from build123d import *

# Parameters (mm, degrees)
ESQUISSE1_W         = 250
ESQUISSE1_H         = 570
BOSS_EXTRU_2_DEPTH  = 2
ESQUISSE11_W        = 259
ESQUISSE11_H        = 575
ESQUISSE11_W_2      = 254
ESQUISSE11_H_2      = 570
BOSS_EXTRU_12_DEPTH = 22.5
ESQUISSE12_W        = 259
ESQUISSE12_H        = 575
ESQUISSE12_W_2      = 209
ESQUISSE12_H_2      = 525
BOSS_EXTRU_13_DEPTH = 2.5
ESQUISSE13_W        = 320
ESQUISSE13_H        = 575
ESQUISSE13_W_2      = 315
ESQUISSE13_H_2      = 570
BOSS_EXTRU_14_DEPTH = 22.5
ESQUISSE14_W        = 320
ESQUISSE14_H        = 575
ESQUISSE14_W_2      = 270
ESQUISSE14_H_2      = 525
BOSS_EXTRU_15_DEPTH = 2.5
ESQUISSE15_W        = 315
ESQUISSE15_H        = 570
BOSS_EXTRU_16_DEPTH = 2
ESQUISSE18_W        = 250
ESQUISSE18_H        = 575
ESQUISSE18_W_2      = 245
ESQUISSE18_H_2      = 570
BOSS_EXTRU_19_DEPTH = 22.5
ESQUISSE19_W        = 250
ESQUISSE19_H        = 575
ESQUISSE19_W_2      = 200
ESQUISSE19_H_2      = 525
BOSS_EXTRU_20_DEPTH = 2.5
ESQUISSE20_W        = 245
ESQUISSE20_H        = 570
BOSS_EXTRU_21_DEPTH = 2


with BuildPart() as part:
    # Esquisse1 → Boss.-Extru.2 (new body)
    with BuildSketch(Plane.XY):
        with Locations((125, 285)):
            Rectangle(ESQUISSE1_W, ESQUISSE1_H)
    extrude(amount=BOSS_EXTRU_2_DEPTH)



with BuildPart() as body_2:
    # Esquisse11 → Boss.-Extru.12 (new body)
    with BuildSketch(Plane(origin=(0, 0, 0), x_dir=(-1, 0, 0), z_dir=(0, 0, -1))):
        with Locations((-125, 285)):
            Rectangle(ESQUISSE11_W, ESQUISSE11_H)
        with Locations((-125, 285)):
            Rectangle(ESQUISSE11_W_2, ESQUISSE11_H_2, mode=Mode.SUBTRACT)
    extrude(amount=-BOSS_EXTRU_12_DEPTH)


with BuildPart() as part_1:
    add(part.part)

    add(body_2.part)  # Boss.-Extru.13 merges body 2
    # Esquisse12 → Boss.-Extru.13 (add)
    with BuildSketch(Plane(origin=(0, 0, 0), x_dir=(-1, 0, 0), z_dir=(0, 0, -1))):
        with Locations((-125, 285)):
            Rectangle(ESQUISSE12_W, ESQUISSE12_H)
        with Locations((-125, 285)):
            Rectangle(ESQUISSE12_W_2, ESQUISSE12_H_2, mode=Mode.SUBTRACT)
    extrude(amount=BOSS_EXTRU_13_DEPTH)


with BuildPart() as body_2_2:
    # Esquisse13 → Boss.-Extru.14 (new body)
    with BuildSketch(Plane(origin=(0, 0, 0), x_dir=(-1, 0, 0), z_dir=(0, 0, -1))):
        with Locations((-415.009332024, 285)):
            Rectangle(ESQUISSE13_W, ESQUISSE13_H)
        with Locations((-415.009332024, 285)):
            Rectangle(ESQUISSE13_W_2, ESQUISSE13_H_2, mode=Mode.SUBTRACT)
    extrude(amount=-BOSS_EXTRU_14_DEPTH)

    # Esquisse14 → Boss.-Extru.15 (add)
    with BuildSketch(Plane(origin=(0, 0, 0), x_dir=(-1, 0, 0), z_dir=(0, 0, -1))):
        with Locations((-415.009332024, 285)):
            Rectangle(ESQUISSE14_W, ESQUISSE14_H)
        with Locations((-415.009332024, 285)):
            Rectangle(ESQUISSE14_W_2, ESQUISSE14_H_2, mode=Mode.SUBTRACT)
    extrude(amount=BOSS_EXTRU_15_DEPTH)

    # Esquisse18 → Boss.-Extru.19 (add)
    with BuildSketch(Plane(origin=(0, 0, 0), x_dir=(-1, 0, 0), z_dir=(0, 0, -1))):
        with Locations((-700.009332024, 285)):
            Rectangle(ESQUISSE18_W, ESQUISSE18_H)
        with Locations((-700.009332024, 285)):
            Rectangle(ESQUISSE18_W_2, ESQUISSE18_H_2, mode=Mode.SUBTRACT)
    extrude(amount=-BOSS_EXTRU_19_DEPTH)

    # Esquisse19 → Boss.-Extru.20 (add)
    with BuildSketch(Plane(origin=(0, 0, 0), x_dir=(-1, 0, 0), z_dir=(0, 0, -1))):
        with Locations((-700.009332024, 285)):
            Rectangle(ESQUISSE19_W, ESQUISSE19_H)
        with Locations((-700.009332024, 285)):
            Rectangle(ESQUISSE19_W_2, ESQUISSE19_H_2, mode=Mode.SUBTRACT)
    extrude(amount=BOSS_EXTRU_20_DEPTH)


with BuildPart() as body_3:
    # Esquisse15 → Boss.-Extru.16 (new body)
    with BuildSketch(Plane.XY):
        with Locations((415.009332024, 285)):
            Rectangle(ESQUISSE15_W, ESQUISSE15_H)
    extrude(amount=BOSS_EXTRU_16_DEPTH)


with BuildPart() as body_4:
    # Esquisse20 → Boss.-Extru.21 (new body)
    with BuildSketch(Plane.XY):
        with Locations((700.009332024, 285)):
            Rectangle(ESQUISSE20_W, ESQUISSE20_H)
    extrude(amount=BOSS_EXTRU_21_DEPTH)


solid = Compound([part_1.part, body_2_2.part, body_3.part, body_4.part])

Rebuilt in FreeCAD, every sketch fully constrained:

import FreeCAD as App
import Part
import Sketcher

V = App.Vector

doc = App.newDocument("Part")
params = doc.addObject("Spreadsheet::Sheet", "Params")
for row, (alias, value) in enumerate([
    ("sketch1_width", "250 mm"),
    ("sketch1_height", "570 mm"),
    ("pad1_length", "2 mm"),
    ("sketch2_width", "259 mm"),
    ("sketch2_width2", "254 mm"),
    ("sketch2_height", "575 mm"),
    ("sketch2_height2", "570 mm"),
    ("pad2_length", "22.5 mm"),
    ("sketch3_width", "259 mm"),
    ("sketch3_width2", "209 mm"),
    ("sketch3_height", "575 mm"),
    ("sketch3_height2", "525 mm"),
    ("pad3_length", "2.5 mm"),
    ("sketch4_width", "320 mm"),
    ("sketch4_width2", "315 mm"),
    ("sketch4_height", "575 mm"),
    ("sketch4_height2", "570 mm"),
    ("pad4_length", "22.5 mm"),
    ("sketch5_width", "320 mm"),
    ("sketch5_width2", "270 mm"),
    ("sketch5_height", "575 mm"),
    ("sketch5_height2", "525 mm"),
    ("pad5_length", "2.5 mm"),
    ("sketch6_width", "250 mm"),
    ("sketch6_width2", "245 mm"),
    ("sketch6_height", "575 mm"),
    ("sketch6_height2", "570 mm"),
    ("pad6_length", "22.5 mm"),
    ("sketch7_width", "250 mm"),
    ("sketch7_width2", "200 mm"),
    ("sketch7_height", "575 mm"),
    ("sketch7_height2", "525 mm"),
    ("pad7_length", "2.5 mm"),
    ("sketch8_width", "315 mm"),
    ("sketch8_height", "570 mm"),
    ("pad8_length", "2 mm"),
    ("sketch9_width", "245 mm"),
    ("sketch9_height", "570 mm"),
    ("pad9_length", "2 mm"),
], start=1):
    params.set(f"A{row}", alias)
    params.set(f"B{row}", "=" + value)
    params.setAlias(f"B{row}", alias)

body = doc.addObject("PartDesign::Body", "Body")

sketch1 = body.newObject("Sketcher::SketchObject", "Sketch")
sketch1.AttachmentSupport = (doc.getObject("XY_Plane"), [""])
sketch1.MapMode = "FlatFace"
sketch1.addGeometry(Part.LineSegment(V(0, 570, 0), V(0, 0, 0)), False)
sketch1.addGeometry(Part.LineSegment(V(0, 0, 0), V(250, 0, 0)), False)
sketch1.addGeometry(Part.LineSegment(V(250, 0, 0), V(250, 570, 0)), False)
sketch1.addGeometry(Part.LineSegment(V(250, 570, 0), V(0, 570, 0)), False)
sketch1.addConstraint(Sketcher.Constraint("Coincident", 0, 2, 1, 1))
sketch1.addConstraint(Sketcher.Constraint("Coincident", 1, 2, 2, 1))
sketch1.addConstraint(Sketcher.Constraint("Coincident", 2, 2, 3, 1))
sketch1.addConstraint(Sketcher.Constraint("Coincident", 3, 2, 0, 1))
sketch1.addConstraint(Sketcher.Constraint("Vertical", 0))
sketch1.addConstraint(Sketcher.Constraint("Horizontal", 1))
sketch1.addConstraint(Sketcher.Constraint("Vertical", 2))
sketch1.addConstraint(Sketcher.Constraint("Horizontal", 3))
sketch1.addConstraint(Sketcher.Constraint("Coincident", 0, 2, -1, 1))
sketch1.addConstraint(Sketcher.Constraint("DistanceX", 1, 1, 1, 2, 250.0))
sketch1.addConstraint(Sketcher.Constraint("DistanceY", 0, 2, 0, 1, 570.0))
sketch1.setExpression("Constraints[9]", "Params.sketch1_width")
sketch1.setExpression("Constraints[10]", "Params.sketch1_height")
pad1 = body.newObject("PartDesign::Pad", "Pad")
pad1.Profile = sketch1
pad1.setExpression("Length", "Params.pad1_length")
body2 = doc.addObject("PartDesign::Body", "Body001")

sketch2 = body2.newObject("Sketcher::SketchObject", "Sketch001")
sketch2.AttachmentSupport = (doc.getObject("XY_Plane001"), [""])
sketch2.MapMode = "FlatFace"
sketch2.addGeometry(Part.LineSegment(V(254, 572, 0), V(254, -2, 0)), False)
sketch2.addGeometry(Part.LineSegment(V(254, -2, 0), V(-4, -2, 0)), False)
sketch2.addGeometry(Part.LineSegment(V(-4, -2, 0), V(-4, 572, 0)), False)
sketch2.addGeometry(Part.LineSegment(V(-4, 572, 0), V(254, 572, 0)), False)
sketch2.addGeometry(Part.LineSegment(V(-2, 0, 0), V(252, 0, 0)), False)
sketch2.addGeometry(Part.LineSegment(V(252, 0, 0), V(252, 570, 0)), False)
sketch2.addGeometry(Part.LineSegment(V(252, 570, 0), V(-2, 570, 0)), False)
sketch2.addGeometry(Part.LineSegment(V(-2, 570, 0), V(-2, 0, 0)), False)
sketch2.addConstraint(Sketcher.Constraint("Coincident", 0, 2, 1, 1))
sketch2.addConstraint(Sketcher.Constraint("Coincident", 1, 2, 2, 1))
sketch2.addConstraint(Sketcher.Constraint("Coincident", 2, 2, 3, 1))
sketch2.addConstraint(Sketcher.Constraint("Coincident", 3, 2, 0, 1))
sketch2.addConstraint(Sketcher.Constraint("Coincident", 4, 2, 5, 1))
sketch2.addConstraint(Sketcher.Constraint("Coincident", 5, 2, 6, 1))
sketch2.addConstraint(Sketcher.Constraint("Coincident", 6, 2, 7, 1))
sketch2.addConstraint(Sketcher.Constraint("Coincident", 7, 2, 4, 1))
sketch2.addConstraint(Sketcher.Constraint("Vertical", 0))
sketch2.addConstraint(Sketcher.Constraint("Horizontal", 1))
sketch2.addConstraint(Sketcher.Constraint("Vertical", 2))
sketch2.addConstraint(Sketcher.Constraint("Horizontal", 3))
sketch2.addConstraint(Sketcher.Constraint("Horizontal", 4))
sketch2.addConstraint(Sketcher.Constraint("Vertical", 5))
sketch2.addConstraint(Sketcher.Constraint("Horizontal", 6))
sketch2.addConstraint(Sketcher.Constraint("Vertical", 7))
sketch2.addConstraint(Sketcher.Constraint("PointOnObject", 4, 2, -1))
sketch2.addConstraint(Sketcher.Constraint("DistanceX", 1, 2, 1, 1, 259.0))
sketch2.addConstraint(Sketcher.Constraint("DistanceX", 4, 1, 4, 2, 254.0))
sketch2.addConstraint(Sketcher.Constraint("DistanceY", 0, 2, 0, 1, 575.0))
sketch2.addConstraint(Sketcher.Constraint("DistanceY", 5, 1, 5, 2, 570.0))
sketch2.addConstraint(Sketcher.Constraint("DistanceX", -1, 1, 4, 2, 252.0))
sketch2.addConstraint(Sketcher.Constraint("DistanceX", -1, 1, 0, 2, 254.5))
sketch2.addConstraint(Sketcher.Constraint("DistanceY", 0, 2, -1, 1, 2.5))
sketch2.setExpression("Constraints[17]", "Params.sketch2_width")
sketch2.setExpression("Constraints[18]", "Params.sketch2_width2")
sketch2.setExpression("Constraints[19]", "Params.sketch2_height")
sketch2.setExpression("Constraints[20]", "Params.sketch2_height2")
pad2 = body2.newObject("PartDesign::Pad", "Pad001")
pad2.Profile = sketch2
pad2.setExpression("Length", "Params.pad2_length")
doc.recompute()

boolean = body.newObject("PartDesign::Boolean", "Boolean")
boolean.Type = "Fuse"
boolean.addObjects([body2])

sketch3 = body.newObject("Sketcher::SketchObject", "Sketch002")
sketch3.AttachmentSupport = (doc.getObject("XY_Plane"), [""])
sketch3.MapMode = "FlatFace"
sketch3.addGeometry(Part.LineSegment(V(254, 572, 0), V(254, -2, 0)), False)
sketch3.addGeometry(Part.LineSegment(V(254, -2, 0), V(-4, -2, 0)), False)
sketch3.addGeometry(Part.LineSegment(V(-4, -2, 0), V(-4, 572, 0)), False)
sketch3.addGeometry(Part.LineSegment(V(-4, 572, 0), V(254, 572, 0)), False)
sketch3.addGeometry(Part.LineSegment(V(20, 22, 0), V(230, 22, 0)), False)
sketch3.addGeometry(Part.LineSegment(V(230, 22, 0), V(230, 548, 0)), False)
sketch3.addGeometry(Part.LineSegment(V(230, 548, 0), V(20, 548, 0)), False)
sketch3.addGeometry(Part.LineSegment(V(20, 548, 0), V(20, 22, 0)), False)
sketch3.addConstraint(Sketcher.Constraint("Coincident", 0, 2, 1, 1))
sketch3.addConstraint(Sketcher.Constraint("Coincident", 1, 2, 2, 1))
sketch3.addConstraint(Sketcher.Constraint("Coincident", 2, 2, 3, 1))
sketch3.addConstraint(Sketcher.Constraint("Coincident", 3, 2, 0, 1))
sketch3.addConstraint(Sketcher.Constraint("Coincident", 4, 2, 5, 1))
sketch3.addConstraint(Sketcher.Constraint("Coincident", 5, 2, 6, 1))
sketch3.addConstraint(Sketcher.Constraint("Coincident", 6, 2, 7, 1))
sketch3.addConstraint(Sketcher.Constraint("Coincident", 7, 2, 4, 1))
sketch3.addConstraint(Sketcher.Constraint("Vertical", 0))
sketch3.addConstraint(Sketcher.Constraint("Horizontal", 1))
sketch3.addConstraint(Sketcher.Constraint("Vertical", 2))
sketch3.addConstraint(Sketcher.Constraint("Horizontal", 3))
sketch3.addConstraint(Sketcher.Constraint("Horizontal", 4))
sketch3.addConstraint(Sketcher.Constraint("Vertical", 5))
sketch3.addConstraint(Sketcher.Constraint("Horizontal", 6))
sketch3.addConstraint(Sketcher.Constraint("Vertical", 7))
sketch3.addConstraint(Sketcher.Constraint("DistanceX", 1, 2, 1, 1, 259.0))
sketch3.addConstraint(Sketcher.Constraint("DistanceX", 4, 1, 4, 2, 209.0))
sketch3.addConstraint(Sketcher.Constraint("DistanceY", 0, 2, 0, 1, 575.0))
sketch3.addConstraint(Sketcher.Constraint("DistanceY", 5, 1, 5, 2, 525.0))
sketch3.addConstraint(Sketcher.Constraint("DistanceX", 4, 2, 0, 2, 25.0))
sketch3.addConstraint(Sketcher.Constraint("DistanceY", 0, 2, 4, 2, 25.0))
sketch3.addConstraint(Sketcher.Constraint("DistanceX", -1, 1, 0, 2, 254.5))
sketch3.addConstraint(Sketcher.Constraint("DistanceY", 0, 2, -1, 1, 2.5))
sketch3.setExpression("Constraints[16]", "Params.sketch3_width")
sketch3.setExpression("Constraints[17]", "Params.sketch3_width2")
sketch3.setExpression("Constraints[18]", "Params.sketch3_height")
sketch3.setExpression("Constraints[19]", "Params.sketch3_height2")
pad3 = body.newObject("PartDesign::Pad", "Pad002")
pad3.Profile = sketch3
pad3.setExpression("Length", "Params.pad3_length")
pad3.Reversed = True
body3 = doc.addObject("PartDesign::Body", "Body002")

sketch4 = body3.newObject("Sketcher::SketchObject", "Sketch003")
sketch4.AttachmentSupport = (doc.getObject("XY_Plane002"), [""])
sketch4.MapMode = "FlatFace"
sketch4.addGeometry(Part.LineSegment(V(575, 572, 0), V(575, -2, 0)), False)
sketch4.addGeometry(Part.LineSegment(V(575, -2, 0), V(255, -2, 0)), False)
sketch4.addGeometry(Part.LineSegment(V(255, -2, 0), V(255, 572, 0)), False)
sketch4.addGeometry(Part.LineSegment(V(255, 572, 0), V(575, 572, 0)), False)
sketch4.addGeometry(Part.LineSegment(V(258, 0, 0), V(573, 0, 0)), False)
sketch4.addGeometry(Part.LineSegment(V(573, 0, 0), V(573, 570, 0)), False)
sketch4.addGeometry(Part.LineSegment(V(573, 570, 0), V(258, 570, 0)), False)
sketch4.addGeometry(Part.LineSegment(V(258, 570, 0), V(258, 0, 0)), False)
sketch4.addConstraint(Sketcher.Constraint("Coincident", 0, 2, 1, 1))
sketch4.addConstraint(Sketcher.Constraint("Coincident", 1, 2, 2, 1))
sketch4.addConstraint(Sketcher.Constraint("Coincident", 2, 2, 3, 1))
sketch4.addConstraint(Sketcher.Constraint("Coincident", 3, 2, 0, 1))
sketch4.addConstraint(Sketcher.Constraint("Coincident", 4, 2, 5, 1))
sketch4.addConstraint(Sketcher.Constraint("Coincident", 5, 2, 6, 1))
sketch4.addConstraint(Sketcher.Constraint("Coincident", 6, 2, 7, 1))
sketch4.addConstraint(Sketcher.Constraint("Coincident", 7, 2, 4, 1))
sketch4.addConstraint(Sketcher.Constraint("Vertical", 0))
sketch4.addConstraint(Sketcher.Constraint("Horizontal", 1))
sketch4.addConstraint(Sketcher.Constraint("Vertical", 2))
sketch4.addConstraint(Sketcher.Constraint("Horizontal", 3))
sketch4.addConstraint(Sketcher.Constraint("Horizontal", 4))
sketch4.addConstraint(Sketcher.Constraint("Vertical", 5))
sketch4.addConstraint(Sketcher.Constraint("Horizontal", 6))
sketch4.addConstraint(Sketcher.Constraint("Vertical", 7))
sketch4.addConstraint(Sketcher.Constraint("PointOnObject", 4, 2, -1))
sketch4.addConstraint(Sketcher.Constraint("DistanceX", 1, 2, 1, 1, 320.0))
sketch4.addConstraint(Sketcher.Constraint("DistanceX", 4, 1, 4, 2, 315.0))
sketch4.addConstraint(Sketcher.Constraint("DistanceY", 0, 2, 0, 1, 575.0))
sketch4.addConstraint(Sketcher.Constraint("DistanceY", 5, 1, 5, 2, 570.0))
sketch4.addConstraint(Sketcher.Constraint("DistanceY", 0, 2, -1, 1, 2.5))
sketch4.addConstraint(Sketcher.Constraint("DistanceX", 4, 2, 0, 2, 2.5))
sketch4.addConstraint(Sketcher.Constraint("DistanceX", -1, 1, 0, 2, 575.009332))
sketch4.setExpression("Constraints[17]", "Params.sketch4_width")
sketch4.setExpression("Constraints[18]", "Params.sketch4_width2")
sketch4.setExpression("Constraints[19]", "Params.sketch4_height")
sketch4.setExpression("Constraints[20]", "Params.sketch4_height2")
pad4 = body3.newObject("PartDesign::Pad", "Pad003")
pad4.Profile = sketch4
pad4.setExpression("Length", "Params.pad4_length")

sketch5 = body3.newObject("Sketcher::SketchObject", "Sketch004")
sketch5.AttachmentSupport = (doc.getObject("XY_Plane002"), [""])
sketch5.MapMode = "FlatFace"
sketch5.addGeometry(Part.LineSegment(V(575, 572, 0), V(575, -2, 0)), False)
sketch5.addGeometry(Part.LineSegment(V(575, -2, 0), V(255, -2, 0)), False)
sketch5.addGeometry(Part.LineSegment(V(255, -2, 0), V(255, 572, 0)), False)
sketch5.addGeometry(Part.LineSegment(V(255, 572, 0), V(575, 572, 0)), False)
sketch5.addGeometry(Part.LineSegment(V(280, 22, 0), V(550, 22, 0)), False)
sketch5.addGeometry(Part.LineSegment(V(550, 22, 0), V(550, 548, 0)), False)
sketch5.addGeometry(Part.LineSegment(V(550, 548, 0), V(280, 548, 0)), False)
sketch5.addGeometry(Part.LineSegment(V(280, 548, 0), V(280, 22, 0)), False)
sketch5.addConstraint(Sketcher.Constraint("Coincident", 0, 2, 1, 1))
sketch5.addConstraint(Sketcher.Constraint("Coincident", 1, 2, 2, 1))
sketch5.addConstraint(Sketcher.Constraint("Coincident", 2, 2, 3, 1))
sketch5.addConstraint(Sketcher.Constraint("Coincident", 3, 2, 0, 1))
sketch5.addConstraint(Sketcher.Constraint("Coincident", 4, 2, 5, 1))
sketch5.addConstraint(Sketcher.Constraint("Coincident", 5, 2, 6, 1))
sketch5.addConstraint(Sketcher.Constraint("Coincident", 6, 2, 7, 1))
sketch5.addConstraint(Sketcher.Constraint("Coincident", 7, 2, 4, 1))
sketch5.addConstraint(Sketcher.Constraint("Vertical", 0))
sketch5.addConstraint(Sketcher.Constraint("Horizontal", 1))
sketch5.addConstraint(Sketcher.Constraint("Vertical", 2))
sketch5.addConstraint(Sketcher.Constraint("Horizontal", 3))
sketch5.addConstraint(Sketcher.Constraint("Horizontal", 4))
sketch5.addConstraint(Sketcher.Constraint("Vertical", 5))
sketch5.addConstraint(Sketcher.Constraint("Horizontal", 6))
sketch5.addConstraint(Sketcher.Constraint("Vertical", 7))
sketch5.addConstraint(Sketcher.Constraint("DistanceX", 1, 2, 1, 1, 320.0))
sketch5.addConstraint(Sketcher.Constraint("DistanceX", 4, 1, 4, 2, 270.0))
sketch5.addConstraint(Sketcher.Constraint("DistanceY", 0, 2, 0, 1, 575.0))
sketch5.addConstraint(Sketcher.Constraint("DistanceY", 5, 1, 5, 2, 525.0))
sketch5.addConstraint(Sketcher.Constraint("DistanceX", 4, 2, 0, 2, 25.0))
sketch5.addConstraint(Sketcher.Constraint("DistanceY", 0, 2, 4, 2, 25.0))
sketch5.addConstraint(Sketcher.Constraint("DistanceY", 0, 2, -1, 1, 2.5))
sketch5.addConstraint(Sketcher.Constraint("DistanceX", -1, 1, 0, 2, 575.009332))
sketch5.setExpression("Constraints[16]", "Params.sketch5_width")
sketch5.setExpression("Constraints[17]", "Params.sketch5_width2")
sketch5.setExpression("Constraints[18]", "Params.sketch5_height")
sketch5.setExpression("Constraints[19]", "Params.sketch5_height2")
pad5 = body3.newObject("PartDesign::Pad", "Pad004")
pad5.Profile = sketch5
pad5.setExpression("Length", "Params.pad5_length")
pad5.Reversed = True

sketch6 = body3.newObject("Sketcher::SketchObject", "Sketch005")
sketch6.AttachmentSupport = (doc.getObject("XY_Plane002"), [""])
sketch6.MapMode = "FlatFace"
sketch6.addGeometry(Part.LineSegment(V(825, 572, 0), V(825, -2, 0)), False)
sketch6.addGeometry(Part.LineSegment(V(825, -2, 0), V(575, -2, 0)), False)
sketch6.addGeometry(Part.LineSegment(V(575, -2, 0), V(575, 572, 0)), False)
sketch6.addGeometry(Part.LineSegment(V(575, 572, 0), V(825, 572, 0)), False)
sketch6.addGeometry(Part.LineSegment(V(578, 0, 0), V(823, 0, 0)), False)
sketch6.addGeometry(Part.LineSegment(V(823, 0, 0), V(823, 570, 0)), False)
sketch6.addGeometry(Part.LineSegment(V(823, 570, 0), V(578, 570, 0)), False)
sketch6.addGeometry(Part.LineSegment(V(578, 570, 0), V(578, 0, 0)), False)
sketch6.addConstraint(Sketcher.Constraint("Coincident", 0, 2, 1, 1))
sketch6.addConstraint(Sketcher.Constraint("Coincident", 1, 2, 2, 1))
sketch6.addConstraint(Sketcher.Constraint("Coincident", 2, 2, 3, 1))
sketch6.addConstraint(Sketcher.Constraint("Coincident", 3, 2, 0, 1))
sketch6.addConstraint(Sketcher.Constraint("Coincident", 4, 2, 5, 1))
sketch6.addConstraint(Sketcher.Constraint("Coincident", 5, 2, 6, 1))
sketch6.addConstraint(Sketcher.Constraint("Coincident", 6, 2, 7, 1))
sketch6.addConstraint(Sketcher.Constraint("Coincident", 7, 2, 4, 1))
sketch6.addConstraint(Sketcher.Constraint("Vertical", 0))
sketch6.addConstraint(Sketcher.Constraint("Horizontal", 1))
sketch6.addConstraint(Sketcher.Constraint("Vertical", 2))
sketch6.addConstraint(Sketcher.Constraint("Horizontal", 3))
sketch6.addConstraint(Sketcher.Constraint("Horizontal", 4))
sketch6.addConstraint(Sketcher.Constraint("Vertical", 5))
sketch6.addConstraint(Sketcher.Constraint("Horizontal", 6))
sketch6.addConstraint(Sketcher.Constraint("Vertical", 7))
sketch6.addConstraint(Sketcher.Constraint("PointOnObject", 4, 2, -1))
sketch6.addConstraint(Sketcher.Constraint("DistanceX", 1, 2, 1, 1, 250.0))
sketch6.addConstraint(Sketcher.Constraint("DistanceX", 4, 1, 4, 2, 245.0))
sketch6.addConstraint(Sketcher.Constraint("DistanceY", 0, 2, 0, 1, 575.0))
sketch6.addConstraint(Sketcher.Constraint("DistanceY", 5, 1, 5, 2, 570.0))
sketch6.addConstraint(Sketcher.Constraint("DistanceY", 0, 2, -1, 1, 2.5))
sketch6.addConstraint(Sketcher.Constraint("DistanceX", 4, 2, 0, 2, 2.5))
sketch6.addConstraint(Sketcher.Constraint("DistanceX", -1, 1, 0, 2, 825.009332))
sketch6.setExpression("Constraints[17]", "Params.sketch6_width")
sketch6.setExpression("Constraints[18]", "Params.sketch6_width2")
sketch6.setExpression("Constraints[19]", "Params.sketch6_height")
sketch6.setExpression("Constraints[20]", "Params.sketch6_height2")
pad6 = body3.newObject("PartDesign::Pad", "Pad005")
pad6.Profile = sketch6
pad6.setExpression("Length", "Params.pad6_length")

sketch7 = body3.newObject("Sketcher::SketchObject", "Sketch006")
sketch7.AttachmentSupport = (doc.getObject("XY_Plane002"), [""])
sketch7.MapMode = "FlatFace"
sketch7.addGeometry(Part.LineSegment(V(825, 572, 0), V(825, -2, 0)), False)
sketch7.addGeometry(Part.LineSegment(V(825, -2, 0), V(575, -2, 0)), False)
sketch7.addGeometry(Part.LineSegment(V(575, -2, 0), V(575, 572, 0)), False)
sketch7.addGeometry(Part.LineSegment(V(575, 572, 0), V(825, 572, 0)), False)
sketch7.addGeometry(Part.LineSegment(V(600, 22, 0), V(800, 22, 0)), False)
sketch7.addGeometry(Part.LineSegment(V(800, 22, 0), V(800, 548, 0)), False)
sketch7.addGeometry(Part.LineSegment(V(800, 548, 0), V(600, 548, 0)), False)
sketch7.addGeometry(Part.LineSegment(V(600, 548, 0), V(600, 22, 0)), False)
sketch7.addConstraint(Sketcher.Constraint("Coincident", 0, 2, 1, 1))
sketch7.addConstraint(Sketcher.Constraint("Coincident", 1, 2, 2, 1))
sketch7.addConstraint(Sketcher.Constraint("Coincident", 2, 2, 3, 1))
sketch7.addConstraint(Sketcher.Constraint("Coincident", 3, 2, 0, 1))
sketch7.addConstraint(Sketcher.Constraint("Coincident", 4, 2, 5, 1))
sketch7.addConstraint(Sketcher.Constraint("Coincident", 5, 2, 6, 1))
sketch7.addConstraint(Sketcher.Constraint("Coincident", 6, 2, 7, 1))
sketch7.addConstraint(Sketcher.Constraint("Coincident", 7, 2, 4, 1))
sketch7.addConstraint(Sketcher.Constraint("Vertical", 0))
sketch7.addConstraint(Sketcher.Constraint("Horizontal", 1))
sketch7.addConstraint(Sketcher.Constraint("Vertical", 2))
sketch7.addConstraint(Sketcher.Constraint("Horizontal", 3))
sketch7.addConstraint(Sketcher.Constraint("Horizontal", 4))
sketch7.addConstraint(Sketcher.Constraint("Vertical", 5))
sketch7.addConstraint(Sketcher.Constraint("Horizontal", 6))
sketch7.addConstraint(Sketcher.Constraint("Vertical", 7))
sketch7.addConstraint(Sketcher.Constraint("DistanceX", 1, 2, 1, 1, 250.0))
sketch7.addConstraint(Sketcher.Constraint("DistanceX", 4, 1, 4, 2, 200.0))
sketch7.addConstraint(Sketcher.Constraint("DistanceY", 0, 2, 0, 1, 575.0))
sketch7.addConstraint(Sketcher.Constraint("DistanceY", 5, 1, 5, 2, 525.0))
sketch7.addConstraint(Sketcher.Constraint("DistanceX", 4, 2, 0, 2, 25.0))
sketch7.addConstraint(Sketcher.Constraint("DistanceY", 0, 2, 4, 2, 25.0))
sketch7.addConstraint(Sketcher.Constraint("DistanceY", 0, 2, -1, 1, 2.5))
sketch7.addConstraint(Sketcher.Constraint("DistanceX", -1, 1, 0, 2, 825.009332))
sketch7.setExpression("Constraints[16]", "Params.sketch7_width")
sketch7.setExpression("Constraints[17]", "Params.sketch7_width2")
sketch7.setExpression("Constraints[18]", "Params.sketch7_height")
sketch7.setExpression("Constraints[19]", "Params.sketch7_height2")
pad7 = body3.newObject("PartDesign::Pad", "Pad006")
pad7.Profile = sketch7
pad7.setExpression("Length", "Params.pad7_length")
pad7.Reversed = True
body4 = doc.addObject("PartDesign::Body", "Body003")

sketch8 = body4.newObject("Sketcher::SketchObject", "Sketch007")
sketch8.AttachmentSupport = (doc.getObject("XY_Plane003"), [""])
sketch8.MapMode = "FlatFace"
sketch8.addGeometry(Part.LineSegment(V(258, 570, 0), V(258, 0, 0)), False)
sketch8.addGeometry(Part.LineSegment(V(258, 0, 0), V(573, 0, 0)), False)
sketch8.addGeometry(Part.LineSegment(V(573, 0, 0), V(573, 570, 0)), False)
sketch8.addGeometry(Part.LineSegment(V(573, 570, 0), V(258, 570, 0)), False)
sketch8.addConstraint(Sketcher.Constraint("Coincident", 0, 2, 1, 1))
sketch8.addConstraint(Sketcher.Constraint("Coincident", 1, 2, 2, 1))
sketch8.addConstraint(Sketcher.Constraint("Coincident", 2, 2, 3, 1))
sketch8.addConstraint(Sketcher.Constraint("Coincident", 3, 2, 0, 1))
sketch8.addConstraint(Sketcher.Constraint("Vertical", 0))
sketch8.addConstraint(Sketcher.Constraint("Horizontal", 1))
sketch8.addConstraint(Sketcher.Constraint("Vertical", 2))
sketch8.addConstraint(Sketcher.Constraint("Horizontal", 3))
sketch8.addConstraint(Sketcher.Constraint("PointOnObject", 0, 2, -1))
sketch8.addConstraint(Sketcher.Constraint("DistanceX", 1, 1, 1, 2, 315.0))
sketch8.addConstraint(Sketcher.Constraint("DistanceY", 0, 2, 0, 1, 570.0))
sketch8.addConstraint(Sketcher.Constraint("DistanceX", -1, 1, 0, 2, 257.509332))
sketch8.setExpression("Constraints[9]", "Params.sketch8_width")
sketch8.setExpression("Constraints[10]", "Params.sketch8_height")
pad8 = body4.newObject("PartDesign::Pad", "Pad007")
pad8.Profile = sketch8
pad8.setExpression("Length", "Params.pad8_length")
body5 = doc.addObject("PartDesign::Body", "Body004")

sketch9 = body5.newObject("Sketcher::SketchObject", "Sketch008")
sketch9.AttachmentSupport = (doc.getObject("XY_Plane004"), [""])
sketch9.MapMode = "FlatFace"
sketch9.addGeometry(Part.LineSegment(V(578, 570, 0), V(578, 0, 0)), False)
sketch9.addGeometry(Part.LineSegment(V(578, 0, 0), V(823, 0, 0)), False)
sketch9.addGeometry(Part.LineSegment(V(823, 0, 0), V(823, 570, 0)), False)
sketch9.addGeometry(Part.LineSegment(V(823, 570, 0), V(578, 570, 0)), False)
sketch9.addConstraint(Sketcher.Constraint("Coincident", 0, 2, 1, 1))
sketch9.addConstraint(Sketcher.Constraint("Coincident", 1, 2, 2, 1))
sketch9.addConstraint(Sketcher.Constraint("Coincident", 2, 2, 3, 1))
sketch9.addConstraint(Sketcher.Constraint("Coincident", 3, 2, 0, 1))
sketch9.addConstraint(Sketcher.Constraint("Vertical", 0))
sketch9.addConstraint(Sketcher.Constraint("Horizontal", 1))
sketch9.addConstraint(Sketcher.Constraint("Vertical", 2))
sketch9.addConstraint(Sketcher.Constraint("Horizontal", 3))
sketch9.addConstraint(Sketcher.Constraint("PointOnObject", 0, 2, -1))
sketch9.addConstraint(Sketcher.Constraint("DistanceX", 1, 1, 1, 2, 245.0))
sketch9.addConstraint(Sketcher.Constraint("DistanceY", 0, 2, 0, 1, 570.0))
sketch9.addConstraint(Sketcher.Constraint("DistanceX", -1, 1, 0, 2, 577.509332))
sketch9.setExpression("Constraints[9]", "Params.sketch9_width")
sketch9.setExpression("Constraints[10]", "Params.sketch9_height")
pad9 = body5.newObject("PartDesign::Pad", "Pad008")
pad9.Profile = sketch9
pad9.setExpression("Length", "Params.pad9_length")

doc.recompute()
